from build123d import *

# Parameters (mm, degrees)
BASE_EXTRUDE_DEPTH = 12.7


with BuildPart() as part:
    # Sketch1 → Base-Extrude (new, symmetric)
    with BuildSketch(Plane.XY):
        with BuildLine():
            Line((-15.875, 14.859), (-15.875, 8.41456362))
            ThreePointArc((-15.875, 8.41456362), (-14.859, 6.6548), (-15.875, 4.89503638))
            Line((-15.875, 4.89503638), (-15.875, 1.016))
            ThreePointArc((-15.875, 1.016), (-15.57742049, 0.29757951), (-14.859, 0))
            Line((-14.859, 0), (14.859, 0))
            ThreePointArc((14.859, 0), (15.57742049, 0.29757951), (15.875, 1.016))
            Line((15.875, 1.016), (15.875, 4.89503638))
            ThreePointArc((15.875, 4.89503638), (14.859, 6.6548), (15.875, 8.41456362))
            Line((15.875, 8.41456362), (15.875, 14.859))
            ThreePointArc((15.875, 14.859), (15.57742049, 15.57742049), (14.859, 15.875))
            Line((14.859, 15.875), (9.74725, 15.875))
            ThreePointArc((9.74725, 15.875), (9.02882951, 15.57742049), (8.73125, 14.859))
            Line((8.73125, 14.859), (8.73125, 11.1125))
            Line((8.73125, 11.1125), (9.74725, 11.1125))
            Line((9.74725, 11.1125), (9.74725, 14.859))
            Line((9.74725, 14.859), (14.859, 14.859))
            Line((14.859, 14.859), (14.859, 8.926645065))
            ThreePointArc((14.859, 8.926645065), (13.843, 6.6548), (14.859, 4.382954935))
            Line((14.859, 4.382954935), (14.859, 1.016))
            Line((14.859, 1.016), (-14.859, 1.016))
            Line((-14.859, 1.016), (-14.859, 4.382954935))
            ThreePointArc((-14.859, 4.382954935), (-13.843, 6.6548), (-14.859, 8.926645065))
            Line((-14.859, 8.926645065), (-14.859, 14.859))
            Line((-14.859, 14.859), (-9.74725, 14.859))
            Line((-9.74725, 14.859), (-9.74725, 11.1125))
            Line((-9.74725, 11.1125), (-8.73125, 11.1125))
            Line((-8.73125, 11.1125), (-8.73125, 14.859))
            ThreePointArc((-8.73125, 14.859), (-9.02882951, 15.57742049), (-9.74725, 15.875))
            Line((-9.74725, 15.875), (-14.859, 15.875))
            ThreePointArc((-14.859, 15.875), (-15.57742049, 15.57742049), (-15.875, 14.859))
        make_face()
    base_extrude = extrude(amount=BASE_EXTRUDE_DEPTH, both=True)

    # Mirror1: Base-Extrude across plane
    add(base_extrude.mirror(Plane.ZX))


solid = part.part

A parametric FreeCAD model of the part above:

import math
import FreeCAD as App
import Part
import Sketcher

V = App.Vector
Q = App.Units.Quantity

doc = App.newDocument("Part")
body = doc.addObject("PartDesign::Body", "Body")

sketch1 = body.newObject("Sketcher::SketchObject", "Sketch")
sketch1.AttachmentSupport = (doc.getObject("XY_Plane"), [""])
sketch1.MapMode = "FlatFace"
sketch1.addGeometry([
    Part.LineSegment(V(-15.9, 14.9, 0), V(-15.9, 8.4, 0)),
    Part.ArcOfCircle(Part.Circle(V(-16.9, 6.7, 0), V(0, 0, 1), 2), math.radians(-60), math.radians(60)),
    Part.LineSegment(V(-15.9, 4.9, 0), V(-15.9, 1, 0)),
    Part.ArcOfCircle(Part.Circle(V(-14.9, 1, 0), V(0, 0, 1), 1), math.radians(180), math.radians(270)),
    Part.LineSegment(V(-14.9, 0, 0), V(14.9, 0, 0)),
    Part.ArcOfCircle(Part.Circle(V(14.9, 1, 0), V(0, 0, 1), 1), math.radians(-90), math.radians(0)),
    Part.LineSegment(V(15.9, 1, 0), V(15.9, 4.9, 0)),
    Part.ArcOfCircle(Part.Circle(V(16.9, 6.7, 0), V(0, 0, 1), 2), math.radians(120), math.radians(240)),
    Part.LineSegment(V(15.9, 8.4, 0), V(15.9, 14.9, 0)),
    Part.ArcOfCircle(Part.Circle(V(14.9, 14.9, 0), V(0, 0, 1), 1), math.radians(0), math.radians(90)),
    Part.LineSegment(V(14.9, 15.9, 0), V(9.7, 15.9, 0)),
    Part.ArcOfCircle(Part.Circle(V(9.7, 14.9, 0), V(0, 0, 1), 1), math.radians(90), math.radians(180)),
    Part.LineSegment(V(8.7, 14.9, 0), V(8.7, 11.1, 0)),
    Part.LineSegment(V(8.7, 11.1, 0), V(9.7, 11.1, 0)),
    Part.LineSegment(V(9.7, 11.1, 0), V(9.7, 14.9, 0)),
    Part.LineSegment(V(9.7, 14.9, 0), V(14.9, 14.9, 0)),
    Part.LineSegment(V(14.9, 14.9, 0), V(14.9, 8.9, 0)),
    Part.ArcOfCircle(Part.Circle(V(16.9, 6.7, 0), V(0, 0, 1), 3), math.radians(132), math.radians(228)),
    Part.LineSegment(V(14.9, 4.4, 0), V(14.9, 1, 0)),
    Part.LineSegment(V(14.9, 1, 0), V(-14.9, 1, 0)),
    Part.LineSegment(V(-14.9, 1, 0), V(-14.9, 4.4, 0)),
    Part.ArcOfCircle(Part.Circle(V(-16.9, 6.7, 0), V(0, 0, 1), 3), math.radians(-48), math.radians(48)),
    Part.LineSegment(V(-14.9, 8.9, 0), V(-14.9, 14.9, 0)),
    Part.LineSegment(V(-14.9, 14.9, 0), V(-9.7, 14.9, 0)),
    Part.LineSegment(V(-9.7, 14.9, 0), V(-9.7, 11.1, 0)),
    Part.LineSegment(V(-9.7, 11.1, 0), V(-8.7, 11.1, 0)),
    Part.LineSegment(V(-8.7, 11.1, 0), V(-8.7, 14.9, 0)),
    Part.ArcOfCircle(Part.Circle(V(-9.7, 14.9, 0), V(0, 0, 1), 1), math.radians(0), math.radians(90)),
    Part.LineSegment(V(-9.7, 15.9, 0), V(-14.9, 15.9, 0)),
    Part.ArcOfCircle(Part.Circle(V(-14.9, 14.9, 0), V(0, 0, 1), 1), math.radians(90), math.radians(180)),
], False)
sketch1.addConstraint([
    Sketcher.Constraint("Coincident", 0, 2, 1, 2),
    Sketcher.Constraint("Coincident", 1, 1, 2, 1),
    Sketcher.Constraint("Tangent", 2, 2, 3, 1),
    Sketcher.Constraint("Tangent", 3, 2, 4, 1),
    Sketcher.Constraint("Tangent", 4, 2, 5, 1),
    Sketcher.Constraint("Tangent", 5, 2, 6, 1),
    Sketcher.Constraint("Coincident", 6, 2, 7, 2),
    Sketcher.Constraint("Coincident", 7, 1, 8, 1),
    Sketcher.Constraint("Tangent", 8, 2, 9, 1),
    Sketcher.Constraint("Tangent", 9, 2, 10, 1),
    Sketcher.Constraint("Tangent", 10, 2, 11, 1),
    Sketcher.Constraint("Tangent", 11, 2, 12, 1),
    Sketcher.Constraint("Coincident", 12, 2, 13, 1),
    Sketcher.Constraint("Coincident", 13, 2, 14, 1),
    Sketcher.Constraint("Coincident", 14, 2, 15, 1),
    Sketcher.Constraint("Coincident", 15, 2, 16, 1),
    Sketcher.Constraint("Coincident", 16, 2, 17, 1),
    Sketcher.Constraint("Coincident", 17, 2, 18, 1),
    Sketcher.Constraint("Coincident", 18, 2, 19, 1),
    Sketcher.Constraint("Coincident", 19, 2, 20, 1),
    Sketcher.Constraint("Coincident", 20, 2, 21, 1),
    Sketcher.Constraint("Coincident", 21, 2, 22, 1),
    Sketcher.Constraint("Coincident", 22, 2, 23, 1),
    Sketcher.Constraint("Coincident", 23, 2, 24, 1),
    Sketcher.Constraint("Coincident", 24, 2, 25, 1),
    Sketcher.Constraint("Coincident", 25, 2, 26, 1),
    Sketcher.Constraint("Tangent", 26, 2, 27, 1),
    Sketcher.Constraint("Tangent", 27, 2, 28, 1),
    Sketcher.Constraint("Tangent", 28, 2, 29, 1),
    Sketcher.Constraint("Tangent", 29, 2, 0, 1),
    Sketcher.Constraint("Vertical", 0),
    Sketcher.Constraint("Vertical", 2),
    Sketcher.Constraint("Horizontal", 4),
    Sketcher.Constraint("Vertical", 6),
    Sketcher.Constraint("Vertical", 8),
    Sketcher.Constraint("Horizontal", 10),
    Sketcher.Constraint("Vertical", 12),
    Sketcher.Constraint("Horizontal", 13),
    Sketcher.Constraint("Vertical", 14),
    Sketcher.Constraint("Horizontal", 15),
    Sketcher.Constraint("Vertical", 16),
    Sketcher.Constraint("Vertical", 18),
    Sketcher.Constraint("Horizontal", 19),
    Sketcher.Constraint("Vertical", 20),
    Sketcher.Constraint("Vertical", 22),
    Sketcher.Constraint("Horizontal", 23),
    Sketcher.Constraint("Vertical", 24),
    Sketcher.Constraint("Horizontal", 25),
    Sketcher.Constraint("Vertical", 26),
    Sketcher.Constraint("Horizontal", 28),
    Sketcher.Constraint("Coincident", 17, 3, 7, 3),
    Sketcher.Constraint("Coincident", 21, 3, 1, 3),
    Sketcher.Constraint("Coincident", 14, 2, 11, 3),
    Sketcher.Constraint("Coincident", 15, 2, 9, 3),
    Sketcher.Constraint("Coincident", 18, 2, 5, 3),
    Sketcher.Constraint("Coincident", 19, 2, 3, 3),
    Sketcher.Constraint("Coincident", 22, 2, 29, 3),
    Sketcher.Constraint("Coincident", 23, 2, 27, 3),
    Sketcher.Constraint("Equal", 1, 7),
    Sketcher.Constraint("Equal", 5, 9),
    Sketcher.Constraint("Equal", 17, 21),
    Sketcher.Constraint("Equal", 11, 27),
    Sketcher.Constraint("Symmetric", 3, 2, 4, 2, -1, 1),
    Sketcher.Constraint("Symmetric", 1, 3, 7, 3, -2),
    Sketcher.Constraint("Symmetric", 11, 3, 27, 3, -2),
    Sketcher.Constraint("Horizontal", 0, 2, 7, 1),
    Sketcher.Constraint("Horizontal", 13, 2, 24, 2),
    Sketcher.Constraint("Vertical", 5, 3, 9, 3),
    Sketcher.Constraint("Radius", 1, Q("0.08 in")),
    Sketcher.Constraint("Radius", 3, Q("0.04 in")),
    Sketcher.Constraint("Radius", 17, Q("0.12 in")),
    Sketcher.Constraint("DistanceX", 4, 1, 4, 2, Q("1.17 in")),
    Sketcher.Constraint("DistanceX", 1, 3, 3, 3, Q("0.08 in")),
    Sketcher.Constraint("DistanceY", 12, 2, 12, 1, Q("0.1475 in")),
    Sketcher.Constraint("DistanceY", -1, 1, 1, 3, Q("0.262 in")),
    Sketcher.Constraint("DistanceY", -1, 1, 9, 3, Q("0.585 in")),
    Sketcher.Constraint("DistanceX", -1, 1, 11, 2, Q("0.34375 in")),
])
pad1 = body.newObject("PartDesign::Pad", "Pad")
pad1.Profile = sketch1
pad1.Length = Q("1 in")
pad1.Midplane = True
doc.recompute()

mirrored = body.newObject("PartDesign::Mirrored", "Mirrored")
mirrored.Originals = [pad1]
mirrored.MirrorPlane = (doc.getObject("XZ_Plane"), [""])
body.Tip = mirrored

doc.recompute()
